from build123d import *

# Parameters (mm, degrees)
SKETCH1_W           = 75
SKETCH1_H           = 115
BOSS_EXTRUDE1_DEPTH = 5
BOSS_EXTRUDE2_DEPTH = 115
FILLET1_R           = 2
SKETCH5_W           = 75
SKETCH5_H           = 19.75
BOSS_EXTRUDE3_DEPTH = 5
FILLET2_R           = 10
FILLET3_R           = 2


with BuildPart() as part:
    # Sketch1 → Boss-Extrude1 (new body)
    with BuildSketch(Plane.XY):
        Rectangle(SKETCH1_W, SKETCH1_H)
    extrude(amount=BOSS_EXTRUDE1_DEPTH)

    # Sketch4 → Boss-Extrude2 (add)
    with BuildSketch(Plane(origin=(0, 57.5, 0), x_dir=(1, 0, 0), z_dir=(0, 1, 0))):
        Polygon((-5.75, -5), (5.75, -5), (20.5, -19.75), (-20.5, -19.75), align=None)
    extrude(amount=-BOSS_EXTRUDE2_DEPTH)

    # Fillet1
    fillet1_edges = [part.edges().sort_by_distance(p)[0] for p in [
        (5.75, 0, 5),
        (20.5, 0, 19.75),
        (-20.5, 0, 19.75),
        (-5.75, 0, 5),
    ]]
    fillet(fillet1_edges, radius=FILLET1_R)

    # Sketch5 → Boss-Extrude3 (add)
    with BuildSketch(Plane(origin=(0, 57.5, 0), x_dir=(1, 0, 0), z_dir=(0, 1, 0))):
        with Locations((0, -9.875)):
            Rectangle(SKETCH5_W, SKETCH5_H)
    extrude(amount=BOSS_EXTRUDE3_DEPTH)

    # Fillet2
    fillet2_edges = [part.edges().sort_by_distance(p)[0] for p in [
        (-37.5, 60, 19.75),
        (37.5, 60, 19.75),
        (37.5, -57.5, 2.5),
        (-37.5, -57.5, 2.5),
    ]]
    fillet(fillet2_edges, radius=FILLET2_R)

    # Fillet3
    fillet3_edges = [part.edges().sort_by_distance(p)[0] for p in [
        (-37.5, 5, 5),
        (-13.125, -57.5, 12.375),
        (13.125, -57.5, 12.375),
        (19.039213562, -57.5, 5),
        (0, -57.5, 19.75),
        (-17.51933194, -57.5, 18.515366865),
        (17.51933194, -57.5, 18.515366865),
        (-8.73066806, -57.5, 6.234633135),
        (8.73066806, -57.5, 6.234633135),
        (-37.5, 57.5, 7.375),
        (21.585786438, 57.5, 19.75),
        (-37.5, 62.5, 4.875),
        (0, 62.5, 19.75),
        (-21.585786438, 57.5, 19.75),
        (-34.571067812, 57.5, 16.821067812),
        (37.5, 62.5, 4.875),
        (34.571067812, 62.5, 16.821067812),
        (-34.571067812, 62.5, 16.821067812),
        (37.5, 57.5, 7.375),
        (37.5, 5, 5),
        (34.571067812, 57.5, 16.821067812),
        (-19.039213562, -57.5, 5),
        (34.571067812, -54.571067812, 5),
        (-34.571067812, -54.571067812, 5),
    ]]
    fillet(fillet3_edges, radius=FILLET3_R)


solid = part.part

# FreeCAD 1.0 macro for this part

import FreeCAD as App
import Part
import Sketcher
Q = App.Units.Quantity


def edges_at(feature, points):
    """Names of the edges that pass closest to the given points."""
    edges = feature.Shape.Edges
    near = lambda p: min(range(len(edges)), key=lambda i: edges[i].distToShape(Part.Vertex(*p))[0])
    return sorted({f"Edge{near(p) + 1}" for p in points})

doc = App.newDocument("Part")
body = doc.addObject("PartDesign::Body", "Body")

sketch1 = body.newObject("Sketcher::SketchObject", "Sketch")
sketch1.AttachmentSupport = (doc.getObject("XY_Plane"), [""])
sketch1.MapMode = "FlatFace"
sketch1.addGeometry(Part.LineSegment(App.Vector(-37.5, 57.5, 0), App.Vector(-37.5, -57.5, 0)), False)
sketch1.addGeometry(Part.LineSegment(App.Vector(-37.5, -57.5, 0), App.Vector(37.5, -57.5, 0)), False)
sketch1.addGeometry(Part.LineSegment(App.Vector(37.5, -57.5, 0), App.Vector(37.5, 57.5, 0)), False)
sketch1.addGeometry(Part.LineSegment(App.Vector(37.5, 57.5, 0), App.Vector(-37.5, 57.5, 0)), False)
sketch1.addConstraint(Sketcher.Constraint("Coincident", 0, 2, 1, 1))
sketch1.addConstraint(Sketcher.Constraint("Coincident", 1, 2, 2, 1))
sketch1.addConstraint(Sketcher.Constraint("Coincident", 2, 2, 3, 1))
sketch1.addConstraint(Sketcher.Constraint("Coincident", 3, 2, 0, 1))
sketch1.addConstraint(Sketcher.Constraint("Vertical", 0))
sketch1.addConstraint(Sketcher.Constraint("Horizontal", 1))
sketch1.addConstraint(Sketcher.Constraint("Vertical", 2))
sketch1.addConstraint(Sketcher.Constraint("Horizontal", 3))
sketch1.addConstraint(Sketcher.Constraint("Symmetric", 0, 2, 2, 2, -1, 1))
sketch1.addConstraint(Sketcher.Constraint("DistanceX", 1, 1, 1, 2, Q("75 mm")))
sketch1.addConstraint(Sketcher.Constraint("DistanceY", 0, 2, 0, 1, Q("115 mm")))
pad1 = body.newObject("PartDesign::Pad", "Pad")
pad1.Profile = sketch1
pad1.Length = 5

sketch2 = body.newObject("Sketcher::SketchObject", "Sketch001")
sketch2.AttachmentSupport = (doc.getObject("XZ_Plane"), [""])
sketch2.MapMode = "FlatFace"
sketch2.AttachmentOffset = App.Placement(App.Vector(0, 0, -57.5), App.Rotation())
sketch2.addGeometry(Part.LineSegment(App.Vector(5.75, 5, 0), App.Vector(-5.75, 5, 0)), False)
sketch2.addGeometry(Part.LineSegment(App.Vector(-5.75, 5, 0), App.Vector(-20.5, 19.75, 0)), False)
sketch2.addGeometry(Part.LineSegment(App.Vector(-20.5, 19.75, 0), App.Vector(20.5, 19.75, 0)), False)
sketch2.addGeometry(Part.LineSegment(App.Vector(20.5, 19.75, 0), App.Vector(5.75, 5, 0)), False)
sketch2.addConstraint(Sketcher.Constraint("Coincident", 0, 2, 1, 1))
sketch2.addConstraint(Sketcher.Constraint("Coincident", 1, 2, 2, 1))
sketch2.addConstraint(Sketcher.Constraint("Coincident", 2, 2, 3, 1))
sketch2.addConstraint(Sketcher.Constraint("Coincident", 3, 2, 0, 1))
sketch2.addConstraint(Sketcher.Constraint("Horizontal", 0))
sketch2.addConstraint(Sketcher.Constraint("Horizontal", 2))
sketch2.addConstraint(Sketcher.Constraint("Perpendicular", 1, 3))
sketch2.addConstraint(Sketcher.Constraint("Equal", 1, 3))
sketch2.addConstraint(Sketcher.Constraint("DistanceX", 2, 1, 2, 2, Q("41 mm")))
sketch2.addConstraint(Sketcher.Constraint("DistanceX", 0, 2, 0, 1, Q("11.5 mm")))
sketch2.addConstraint(Sketcher.Constraint("DistanceY", -1, 1, 0, 2, Q("5 mm")))
sketch2.addConstraint(Sketcher.Constraint("DistanceX", 1, 2, -1, 1, Q("20.5 mm")))
pad2 = body.newObject("PartDesign::Pad", "Pad001")
pad2.Profile = sketch2
pad2.Length = 115
doc.recompute()

fillet = body.newObject("PartDesign::Fillet", "Fillet")
fillet.Base = (pad2, edges_at(pad2, [
    (5.75, 0, 5),
    (20.5, 0, 19.75),
    (-20.5, 0, 19.75),
    (-5.75, 0, 5),
]))
fillet.Radius = 2

sketch3 = body.newObject("Sketcher::SketchObject", "Sketch002")
sketch3.AttachmentSupport = (doc.getObject("XZ_Plane"), [""])
sketch3.MapMode = "FlatFace"
sketch3.AttachmentOffset = App.Placement(App.Vector(0, 0, -57.5), App.Rotation())
sketch3.addGeometry(Part.LineSegment(App.Vector(-37.5, 0, 0), App.Vector(-37.5, 19.75, 0)), False)
sketch3.addGeometry(Part.LineSegment(App.Vector(-37.5, 19.75, 0), App.Vector(37.5, 19.75, 0)), False)
sketch3.addGeometry(Part.LineSegment(App.Vector(37.5, 19.75, 0), App.Vector(37.5, 0, 0)), False)
sketch3.addGeometry(Part.LineSegment(App.Vector(37.5, 0, 0), App.Vector(-37.5, 0, 0)), False)
sketch3.addConstraint(Sketcher.Constraint("Coincident", 0, 2, 1, 1))
sketch3.addConstraint(Sketcher.Constraint("Coincident", 1, 2, 2, 1))
sketch3.addConstraint(Sketcher.Constraint("Coincident", 2, 2, 3, 1))
sketch3.addConstraint(Sketcher.Constraint("Coincident", 3, 2, 0, 1))
sketch3.addConstraint(Sketcher.Constraint("Vertical", 0))
sketch3.addConstraint(Sketcher.Constraint("Horizontal", 1))
sketch3.addConstraint(Sketcher.Constraint("Vertical", 2))
sketch3.addConstraint(Sketcher.Constraint("Horizontal", 3))
sketch3.addConstraint(Sketcher.Constraint("Symmetric", 2, 2, 3, 2, -1, 1))
sketch3.addConstraint(Sketcher.Constraint("DistanceX", 1, 1, 1, 2, Q("75 mm")))
sketch3.addConstraint(Sketcher.Constraint("DistanceY", 0, 1, 0, 2, Q("19.75 mm")))
pad3 = body.newObject("PartDesign::Pad", "Pad002")
pad3.Profile = sketch3
pad3.Length = 5
pad3.Reversed = True
doc.recompute()

fillet2 = body.newObject("PartDesign::Fillet", "Fillet001")
fillet2.Base = (pad3, edges_at(pad3, [
    (-37.5, 60, 19.75),
    (37.5, 60, 19.75),
    (37.5, -57.5, 2.5),
    (-37.5, -57.5, 2.5),
]))
fillet2.Radius = 10
doc.recompute()

fillet3 = body.newObject("PartDesign::Fillet", "Fillet002")
fillet3.Base = (fillet2, edges_at(fillet2, [
    (-37.5, 5, 5),
    (-13.125, -57.5, 12.375),
    (13.125, -57.5, 12.375),
    (19.039, -57.5, 5),
    (0, -57.5, 19.75),
    (-17.519, -57.5, 18.515),
    (17.519, -57.5, 18.515),
    (-8.731, -57.5, 6.235),
    (8.731, -57.5, 6.235),
    (-37.5, 57.5, 7.375),
    (21.586, 57.5, 19.75),
    (-37.5, 62.5, 4.875),
    (0, 62.5, 19.75),
    (-21.586, 57.5, 19.75),
    (-34.571, 57.5, 16.821),
    (37.5, 62.5, 4.875),
    (34.571, 62.5, 16.821),
    (-34.571, 62.5, 16.821),
    (37.5, 57.5, 7.375),
    (37.5, 5, 5),
    (34.571, 57.5, 16.821),
    (-19.039, -57.5, 5),
    (34.571, -54.571, 5),
    (-34.571, -54.571, 5),
]))
fillet3.Radius = 2

doc.recompute()
